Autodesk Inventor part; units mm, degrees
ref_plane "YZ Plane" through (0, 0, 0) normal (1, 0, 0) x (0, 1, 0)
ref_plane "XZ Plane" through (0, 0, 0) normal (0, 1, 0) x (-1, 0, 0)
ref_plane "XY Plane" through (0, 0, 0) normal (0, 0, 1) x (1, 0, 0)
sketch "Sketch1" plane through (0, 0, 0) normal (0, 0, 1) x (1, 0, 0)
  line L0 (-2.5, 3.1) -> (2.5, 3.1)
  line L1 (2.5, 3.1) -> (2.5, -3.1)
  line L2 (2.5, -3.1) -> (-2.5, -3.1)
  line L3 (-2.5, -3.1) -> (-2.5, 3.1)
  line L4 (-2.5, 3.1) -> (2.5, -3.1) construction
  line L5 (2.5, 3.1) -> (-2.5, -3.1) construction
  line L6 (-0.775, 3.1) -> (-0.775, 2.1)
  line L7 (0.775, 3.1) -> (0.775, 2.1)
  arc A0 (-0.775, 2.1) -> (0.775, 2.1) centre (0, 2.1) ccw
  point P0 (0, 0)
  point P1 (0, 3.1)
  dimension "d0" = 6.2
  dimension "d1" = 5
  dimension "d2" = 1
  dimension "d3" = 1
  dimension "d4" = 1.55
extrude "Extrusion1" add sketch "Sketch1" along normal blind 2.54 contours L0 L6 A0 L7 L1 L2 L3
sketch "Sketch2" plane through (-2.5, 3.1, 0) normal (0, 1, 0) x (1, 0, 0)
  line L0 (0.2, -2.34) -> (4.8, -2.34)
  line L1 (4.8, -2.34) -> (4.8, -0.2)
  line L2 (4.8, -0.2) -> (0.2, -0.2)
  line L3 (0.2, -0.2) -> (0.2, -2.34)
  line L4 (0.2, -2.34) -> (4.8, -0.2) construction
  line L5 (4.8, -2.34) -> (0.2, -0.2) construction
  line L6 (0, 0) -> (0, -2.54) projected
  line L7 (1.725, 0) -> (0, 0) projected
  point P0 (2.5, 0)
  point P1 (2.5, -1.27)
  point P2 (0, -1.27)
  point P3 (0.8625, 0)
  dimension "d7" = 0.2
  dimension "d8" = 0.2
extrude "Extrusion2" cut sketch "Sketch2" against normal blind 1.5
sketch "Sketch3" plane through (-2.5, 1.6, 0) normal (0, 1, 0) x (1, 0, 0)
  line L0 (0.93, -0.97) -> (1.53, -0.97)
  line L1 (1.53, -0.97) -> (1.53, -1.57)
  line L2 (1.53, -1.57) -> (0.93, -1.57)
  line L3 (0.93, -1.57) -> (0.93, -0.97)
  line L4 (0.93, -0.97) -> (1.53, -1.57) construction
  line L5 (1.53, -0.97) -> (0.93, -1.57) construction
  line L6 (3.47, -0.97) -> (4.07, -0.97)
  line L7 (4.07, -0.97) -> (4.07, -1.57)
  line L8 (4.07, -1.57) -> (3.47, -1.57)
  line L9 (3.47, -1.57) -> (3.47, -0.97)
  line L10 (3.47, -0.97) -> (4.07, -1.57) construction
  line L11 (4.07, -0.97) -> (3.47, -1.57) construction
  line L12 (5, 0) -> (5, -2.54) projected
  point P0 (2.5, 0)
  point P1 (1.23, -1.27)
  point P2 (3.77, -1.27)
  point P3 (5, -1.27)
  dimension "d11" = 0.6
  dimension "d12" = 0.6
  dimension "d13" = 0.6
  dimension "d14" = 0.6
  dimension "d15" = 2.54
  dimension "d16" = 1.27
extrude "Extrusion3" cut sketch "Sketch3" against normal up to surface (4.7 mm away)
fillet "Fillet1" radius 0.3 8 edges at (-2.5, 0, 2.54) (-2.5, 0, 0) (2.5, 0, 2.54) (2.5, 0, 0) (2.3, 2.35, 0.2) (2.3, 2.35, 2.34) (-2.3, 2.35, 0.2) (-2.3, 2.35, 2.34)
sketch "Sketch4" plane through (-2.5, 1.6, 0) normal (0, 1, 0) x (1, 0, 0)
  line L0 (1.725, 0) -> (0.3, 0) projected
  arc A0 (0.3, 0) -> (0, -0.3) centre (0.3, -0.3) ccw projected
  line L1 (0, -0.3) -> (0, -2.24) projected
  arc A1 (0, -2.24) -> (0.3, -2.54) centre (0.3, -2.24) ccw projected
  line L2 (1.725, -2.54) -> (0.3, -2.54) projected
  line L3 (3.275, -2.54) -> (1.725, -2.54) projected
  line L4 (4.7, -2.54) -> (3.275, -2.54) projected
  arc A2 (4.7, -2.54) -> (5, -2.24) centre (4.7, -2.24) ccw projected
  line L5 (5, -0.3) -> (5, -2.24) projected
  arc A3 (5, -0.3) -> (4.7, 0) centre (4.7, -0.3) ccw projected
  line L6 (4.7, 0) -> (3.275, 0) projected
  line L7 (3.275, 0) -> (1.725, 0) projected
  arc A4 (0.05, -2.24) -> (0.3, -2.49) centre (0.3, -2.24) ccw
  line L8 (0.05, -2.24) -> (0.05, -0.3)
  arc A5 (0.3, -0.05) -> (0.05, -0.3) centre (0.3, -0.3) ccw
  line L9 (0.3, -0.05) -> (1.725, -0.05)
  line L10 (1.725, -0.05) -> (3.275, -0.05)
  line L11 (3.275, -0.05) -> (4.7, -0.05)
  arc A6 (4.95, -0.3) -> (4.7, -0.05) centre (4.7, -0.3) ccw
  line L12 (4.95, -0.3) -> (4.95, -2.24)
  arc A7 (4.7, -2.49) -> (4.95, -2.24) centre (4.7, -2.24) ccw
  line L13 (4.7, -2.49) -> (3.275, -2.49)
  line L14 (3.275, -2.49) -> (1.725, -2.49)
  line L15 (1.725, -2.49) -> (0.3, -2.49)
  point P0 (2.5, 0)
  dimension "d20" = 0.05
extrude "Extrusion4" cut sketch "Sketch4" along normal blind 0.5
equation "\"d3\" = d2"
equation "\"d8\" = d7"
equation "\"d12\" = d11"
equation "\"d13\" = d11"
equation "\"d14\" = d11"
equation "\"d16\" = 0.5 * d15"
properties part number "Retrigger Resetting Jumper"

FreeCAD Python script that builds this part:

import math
import FreeCAD as App
import Part
import Sketcher
Q = App.Units.Quantity


def edges_at(feature, points):
    """Names of the edges that pass closest to the given points."""
    edges = feature.Shape.Edges
    near = lambda p: min(range(len(edges)), key=lambda i: edges[i].distToShape(Part.Vertex(*p))[0])
    return sorted({f"Edge{near(p) + 1}" for p in points})

doc = App.newDocument("Part")
params = doc.addObject("Spreadsheet::Sheet", "Params")
for row, (alias, value) in enumerate([
    ("sketch1_width", "5 mm"),
    ("sketch1_height", "1 mm"),
    ("sketch1_height2", "6.2 mm"),
    ("pad1_length", "2.54 mm"),
    ("sketch2_width", "4.6 mm"),
    ("sketch2_height", "2.14 mm"),
    ("pocket1_length", "1.5 mm"),
    ("sketch3_width", "0.6 mm"),
    ("pocket2_length", "4.7 mm"),
    ("fillet_radius", "0.3 mm"),
    ("sketch4_radius", "0.3 mm"),
    ("sketch4_width", "4.4 mm"),
    ("sketch4_height", "1.94 mm"),
    ("pocket3_length", "0.5 mm"),
], start=1):
    params.set(f"A{row}", alias)
    params.set(f"B{row}", "=" + value)
    params.setAlias(f"B{row}", alias)

body = doc.addObject("PartDesign::Body", "Body")

sketch1 = body.newObject("Sketcher::SketchObject", "Sketch")
sketch1.AttachmentSupport = (doc.getObject("XY_Plane"), [""])
sketch1.MapMode = "FlatFace"
sketch1.addGeometry([
    Part.LineSegment(App.Vector(-0.8, 3.1, 0), App.Vector(-2.5, 3.1, 0)),
    Part.LineSegment(App.Vector(-2.5, 3.1, 0), App.Vector(-2.5, -3.1, 0)),
    Part.LineSegment(App.Vector(-2.5, -3.1, 0), App.Vector(2.5, -3.1, 0)),
    Part.LineSegment(App.Vector(2.5, -3.1, 0), App.Vector(2.5, 3.1, 0)),
    Part.LineSegment(App.Vector(2.5, 3.1, 0), App.Vector(0.8, 3.1, 0)),
    Part.LineSegment(App.Vector(0.8, 3.1, 0), App.Vector(0.8, 2.1, 0)),
    Part.ArcOfCircle(Part.Circle(App.Vector(0, 2.1, 0), App.Vector(0, 0, 1), 0.8), math.radians(180), math.radians(360)),
    Part.LineSegment(App.Vector(-0.8, 2.1, 0), App.Vector(-0.8, 3.1, 0)),
], False)
sketch1.addConstraint([
    Sketcher.Constraint("Coincident", 0, 2, 1, 1),
    Sketcher.Constraint("Coincident", 1, 2, 2, 1),
    Sketcher.Constraint("Coincident", 2, 2, 3, 1),
    Sketcher.Constraint("Coincident", 3, 2, 4, 1),
    Sketcher.Constraint("Coincident", 4, 2, 5, 1),
    Sketcher.Constraint("Tangent", 5, 2, 6, 2),
    Sketcher.Constraint("Tangent", 6, 1, 7, 1),
    Sketcher.Constraint("Coincident", 7, 2, 0, 1),
    Sketcher.Constraint("Horizontal", 0),
    Sketcher.Constraint("Vertical", 1),
    Sketcher.Constraint("Horizontal", 2),
    Sketcher.Constraint("Vertical", 3),
    Sketcher.Constraint("Horizontal", 4),
    Sketcher.Constraint("Vertical", 5),
    Sketcher.Constraint("Vertical", 7),
    Sketcher.Constraint("Symmetric", 0, 2, 2, 2, -1, 1),
    Sketcher.Constraint("Symmetric", 4, 2, 7, 2, -2),
    Sketcher.Constraint("DistanceX", 2, 1, 2, 2, Q("5 mm")),
    Sketcher.Constraint("DistanceY", 5, 2, 5, 1, Q("1 mm")),
    Sketcher.Constraint("DistanceY", 1, 2, 1, 1, Q("6.2 mm")),
    Sketcher.Constraint("Radius", 6, Q("0.775 mm")),
])
sketch1.setExpression("Constraints[17]", "Params.sketch1_width")
sketch1.setExpression("Constraints[18]", "Params.sketch1_height")
sketch1.setExpression("Constraints[19]", "Params.sketch1_height2")
pad1 = body.newObject("PartDesign::Pad", "Pad")
pad1.Profile = sketch1
pad1.setExpression("Length", "Params.pad1_length")

sketch2 = body.newObject("Sketcher::SketchObject", "Sketch001")
sketch2.AttachmentSupport = (doc.getObject("XZ_Plane"), [""])
sketch2.MapMode = "FlatFace"
sketch2.AttachmentOffset = App.Placement(App.Vector(0, 0, -3.1), App.Rotation())
sketch2.addGeometry([
    Part.LineSegment(App.Vector(-2.3, 0.2, 0), App.Vector(-2.3, 2.3, 0)),
    Part.LineSegment(App.Vector(-2.3, 2.3, 0), App.Vector(2.3, 2.3, 0)),
    Part.LineSegment(App.Vector(2.3, 2.3, 0), App.Vector(2.3, 0.2, 0)),
    Part.LineSegment(App.Vector(2.3, 0.2, 0), App.Vector(-2.3, 0.2, 0)),
], False)
sketch2.addConstraint([
    Sketcher.Constraint("Coincident", 0, 2, 1, 1),
    Sketcher.Constraint("Coincident", 1, 2, 2, 1),
    Sketcher.Constraint("Coincident", 2, 2, 3, 1),
    Sketcher.Constraint("Coincident", 3, 2, 0, 1),
    Sketcher.Constraint("Vertical", 0),
    Sketcher.Constraint("Horizontal", 1),
    Sketcher.Constraint("Vertical", 2),
    Sketcher.Constraint("Horizontal", 3),
    Sketcher.Constraint("DistanceY", -1, 1, 2, 2, Q("0.2 mm")),
    Sketcher.Constraint("DistanceX", 1, 1, 1, 2, Q("4.6 mm")),
    Sketcher.Constraint("DistanceY", 0, 1, 0, 2, Q("2.14 mm")),
    Sketcher.Constraint("DistanceX", 0, 2, -1, 1, Q("2.3 mm")),
])
sketch2.setExpression("Constraints[9]", "Params.sketch2_width")
sketch2.setExpression("Constraints[10]", "Params.sketch2_height")
pocket1 = body.newObject("PartDesign::Pocket", "Pocket")
pocket1.Profile = sketch2
pocket1.setExpression("Length", "Params.pocket1_length")
pocket1.Reversed = True

sketch3 = body.newObject("Sketcher::SketchObject", "Sketch002")
sketch3.AttachmentSupport = (doc.getObject("XZ_Plane"), [""])
sketch3.MapMode = "FlatFace"
sketch3.AttachmentOffset = App.Placement(App.Vector(0, 0, -1.6), App.Rotation())
sketch3.addGeometry([
    Part.LineSegment(App.Vector(-1, 1, 0), App.Vector(-1.6, 1, 0)),
    Part.LineSegment(App.Vector(-1.6, 1, 0), App.Vector(-1.6, 1.6, 0)),
    Part.LineSegment(App.Vector(-1.6, 1.6, 0), App.Vector(-1, 1.6, 0)),
    Part.LineSegment(App.Vector(-1, 1.6, 0), App.Vector(-1, 1, 0)),
    Part.LineSegment(App.Vector(1.6, 1, 0), App.Vector(1, 1, 0)),
    Part.LineSegment(App.Vector(1, 1, 0), App.Vector(1, 1.6, 0)),
    Part.LineSegment(App.Vector(1, 1.6, 0), App.Vector(1.6, 1.6, 0)),
    Part.LineSegment(App.Vector(1.6, 1.6, 0), App.Vector(1.6, 1, 0)),
], False)
sketch3.addConstraint([
    Sketcher.Constraint("Coincident", 0, 2, 1, 1),
    Sketcher.Constraint("Coincident", 1, 2, 2, 1),
    Sketcher.Constraint("Coincident", 2, 2, 3, 1),
    Sketcher.Constraint("Coincident", 3, 2, 0, 1),
    Sketcher.Constraint("Coincident", 4, 2, 5, 1),
    Sketcher.Constraint("Coincident", 5, 2, 6, 1),
    Sketcher.Constraint("Coincident", 6, 2, 7, 1),
    Sketcher.Constraint("Coincident", 7, 2, 4, 1),
    Sketcher.Constraint("Horizontal", 0),
    Sketcher.Constraint("Vertical", 1),
    Sketcher.Constraint("Horizontal", 2),
    Sketcher.Constraint("Vertical", 3),
    Sketcher.Constraint("Horizontal", 4),
    Sketcher.Constraint("Vertical", 5),
    Sketcher.Constraint("Horizontal", 6),
    Sketcher.Constraint("Vertical", 7),
    Sketcher.Constraint("Symmetric", 3, 2, 4, 2, -2),
    Sketcher.Constraint("Symmetric", 1, 2, 6, 2, -2),
    Sketcher.Constraint("Equal", 6, 1),
    Sketcher.Constraint("DistanceX", 0, 2, 0, 1, Q("0.6 mm")),
    Sketcher.Constraint("DistanceX", 0, 2, 4, 2, Q("2.54 mm")),
    Sketcher.Constraint("DistanceY", -1, 1, 0, 2, Q("0.97 mm")),
])
sketch3.setExpression("Constraints[19]", "Params.sketch3_width")
pocket2 = body.newObject("PartDesign::Pocket", "Pocket001")
pocket2.Profile = sketch3
pocket2.setExpression("Length", "Params.pocket2_length")
pocket2.Reversed = True
doc.recompute()

fillet = body.newObject("PartDesign::Fillet", "Fillet")
fillet.Base = (pocket2, edges_at(pocket2, [
    (-2.5, 0, 2.54),
    (-2.5, 0, 0),
    (2.5, 0, 2.54),
    (2.5, 0, 0),
    (2.3, 2.35, 0.2),
    (2.3, 2.35, 2.34),
    (-2.3, 2.35, 0.2),
    (-2.3, 2.35, 2.34),
]))
fillet.setExpression("Radius", "Params.fillet_radius")

sketch4 = body.newObject("Sketcher::SketchObject", "Sketch003")
sketch4.AttachmentSupport = (doc.getObject("XZ_Plane"), [""])
sketch4.MapMode = "FlatFace"
sketch4.AttachmentOffset = App.Placement(App.Vector(0, 0, -1.6), App.Rotation())
sketch4.addGeometry([
    Part.LineSegment(App.Vector(2.2, 0, 0), App.Vector(-2.2, 0, 0)),
    Part.ArcOfCircle(Part.Circle(App.Vector(-2.2, 0.3, 0), App.Vector(0, 0, 1), 0.3), math.radians(180), math.radians(270)),
    Part.LineSegment(App.Vector(-2.5, 0.3, 0), App.Vector(-2.5, 2.24, 0)),
    Part.ArcOfCircle(Part.Circle(App.Vector(-2.2, 2.24, 0), App.Vector(0, 0, 1), 0.3), math.radians(90), math.radians(180)),
    Part.LineSegment(App.Vector(-2.2, 2.54, 0), App.Vector(2.2, 2.54, 0)),
    Part.ArcOfCircle(Part.Circle(App.Vector(2.2, 2.24, 0), App.Vector(0, 0, 1), 0.3), math.radians(0), math.radians(90)),
    Part.LineSegment(App.Vector(2.5, 2.24, 0), App.Vector(2.5, 0.3, 0)),
    Part.ArcOfCircle(Part.Circle(App.Vector(2.2, 0.3, 0), App.Vector(0, 0, 1), 0.3), math.radians(-90), math.radians(0)),
    Part.ArcOfCircle(Part.Circle(App.Vector(-2.2, 2.24, 0), App.Vector(0, 0, 1), 0.25), math.radians(90), math.radians(180)),
    Part.LineSegment(App.Vector(-2.45, 2.24, 0), App.Vector(-2.45, 0.3, 0)),
    Part.ArcOfCircle(Part.Circle(App.Vector(-2.2, 0.3, 0), App.Vector(0, 0, 1), 0.25), math.radians(180), math.radians(270)),
    Part.LineSegment(App.Vector(-2.2, 0.05, 0), App.Vector(2.2, 0.05, 0)),
    Part.ArcOfCircle(Part.Circle(App.Vector(2.2, 0.3, 0), App.Vector(0, 0, 1), 0.25), math.radians(-90), math.radians(0)),
    Part.LineSegment(App.Vector(2.45, 0.3, 0), App.Vector(2.45, 2.24, 0)),
    Part.ArcOfCircle(Part.Circle(App.Vector(2.2, 2.24, 0), App.Vector(0, 0, 1), 0.25), math.radians(0), math.radians(90)),
    Part.LineSegment(App.Vector(2.2, 2.49, 0), App.Vector(-2.2, 2.49, 0)),
], False)
sketch4.addConstraint([
    Sketcher.Constraint("Tangent", 0, 2, 1, 2),
    Sketcher.Constraint("Tangent", 1, 1, 2, 1),
    Sketcher.Constraint("Tangent", 2, 2, 3, 2),
    Sketcher.Constraint("Tangent", 3, 1, 4, 1),
    Sketcher.Constraint("Tangent", 4, 2, 5, 2),
    Sketcher.Constraint("Tangent", 5, 1, 6, 1),
    Sketcher.Constraint("Tangent", 6, 2, 7, 2),
    Sketcher.Constraint("Tangent", 7, 1, 0, 1),
    Sketcher.Constraint("Tangent", 8, 2, 9, 1),
    Sketcher.Constraint("Tangent", 9, 2, 10, 1),
    Sketcher.Constraint("Tangent", 10, 2, 11, 1),
    Sketcher.Constraint("Tangent", 11, 2, 12, 1),
    Sketcher.Constraint("Tangent", 12, 2, 13, 1),
    Sketcher.Constraint("Tangent", 13, 2, 14, 1),
    Sketcher.Constraint("Tangent", 14, 2, 15, 1),
    Sketcher.Constraint("Tangent", 15, 2, 8, 1),
    Sketcher.Constraint("Horizontal", 0),
    Sketcher.Constraint("Vertical", 2),
    Sketcher.Constraint("Horizontal", 4),
    Sketcher.Constraint("Vertical", 6),
    Sketcher.Constraint("Vertical", 9),
    Sketcher.Constraint("Horizontal", 11),
    Sketcher.Constraint("Vertical", 13),
    Sketcher.Constraint("Horizontal", 15),
    Sketcher.Constraint("Coincident", 8, 3, 3, 3),
    Sketcher.Constraint("Coincident", 10, 3, 1, 3),
    Sketcher.Constraint("Coincident", 12, 3, 7, 3),
    Sketcher.Constraint("Equal", 1, 3),
    Sketcher.Constraint("Equal", 3, 5),
    Sketcher.Constraint("Equal", 5, 7),
    Sketcher.Constraint("Equal", 12, 14),
    Sketcher.Constraint("Symmetric", 0, 2, 7, 1, -1, 1),
    Sketcher.Constraint("Radius", 1, Q("0.3 mm")),
    Sketcher.Constraint("DistanceY", -1, 1, 10, 2, Q("0.05 mm")),
    Sketcher.Constraint("DistanceX", 0, 2, 0, 1, Q("4.4 mm")),
    Sketcher.Constraint("DistanceY", 2, 1, 2, 2, Q("1.94 mm")),
])
sketch4.setExpression("Constraints[32]", "Params.sketch4_radius")
sketch4.setExpression("Constraints[34]", "Params.sketch4_width")
sketch4.setExpression("Constraints[35]", "Params.sketch4_height")
pocket3 = body.newObject("PartDesign::Pocket", "Pocket002")
pocket3.Profile = sketch4
pocket3.setExpression("Length", "Params.pocket3_length")

doc.recompute()
